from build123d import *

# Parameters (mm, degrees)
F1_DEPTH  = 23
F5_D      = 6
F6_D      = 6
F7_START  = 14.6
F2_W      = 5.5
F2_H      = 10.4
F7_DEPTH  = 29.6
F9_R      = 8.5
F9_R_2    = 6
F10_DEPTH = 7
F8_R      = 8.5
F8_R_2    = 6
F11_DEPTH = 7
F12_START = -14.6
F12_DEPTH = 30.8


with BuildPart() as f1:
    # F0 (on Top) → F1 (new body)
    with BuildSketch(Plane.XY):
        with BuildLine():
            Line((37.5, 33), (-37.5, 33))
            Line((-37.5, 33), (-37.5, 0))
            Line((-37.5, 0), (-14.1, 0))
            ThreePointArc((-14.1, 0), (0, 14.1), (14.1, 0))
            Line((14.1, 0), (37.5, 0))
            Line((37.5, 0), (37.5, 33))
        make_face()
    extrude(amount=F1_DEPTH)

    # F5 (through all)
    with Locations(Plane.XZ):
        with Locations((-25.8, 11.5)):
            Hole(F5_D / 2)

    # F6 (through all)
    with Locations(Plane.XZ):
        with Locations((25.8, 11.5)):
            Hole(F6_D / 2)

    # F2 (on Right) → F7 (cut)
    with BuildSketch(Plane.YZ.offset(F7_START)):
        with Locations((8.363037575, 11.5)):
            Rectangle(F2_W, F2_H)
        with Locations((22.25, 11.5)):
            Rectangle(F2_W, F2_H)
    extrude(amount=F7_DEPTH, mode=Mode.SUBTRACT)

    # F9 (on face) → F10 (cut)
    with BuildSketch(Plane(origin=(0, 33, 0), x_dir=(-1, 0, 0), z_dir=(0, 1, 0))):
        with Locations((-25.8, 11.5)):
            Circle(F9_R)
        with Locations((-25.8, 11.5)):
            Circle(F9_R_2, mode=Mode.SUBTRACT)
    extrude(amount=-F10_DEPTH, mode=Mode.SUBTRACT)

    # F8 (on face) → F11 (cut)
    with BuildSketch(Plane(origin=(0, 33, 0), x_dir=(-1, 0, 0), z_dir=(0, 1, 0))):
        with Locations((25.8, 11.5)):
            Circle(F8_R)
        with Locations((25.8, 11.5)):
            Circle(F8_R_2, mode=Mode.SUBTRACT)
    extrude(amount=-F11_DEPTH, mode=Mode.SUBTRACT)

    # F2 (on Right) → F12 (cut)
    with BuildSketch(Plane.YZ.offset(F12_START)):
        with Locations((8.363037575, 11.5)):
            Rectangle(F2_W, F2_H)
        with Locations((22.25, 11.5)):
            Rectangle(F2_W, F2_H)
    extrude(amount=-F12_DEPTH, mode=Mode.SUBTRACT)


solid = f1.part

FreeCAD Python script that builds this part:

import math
import FreeCAD as App
import Part
import Sketcher

V = App.Vector

doc = App.newDocument("Part")
body = doc.addObject("PartDesign::Body", "Body")

# Sketch on XY plane
sketch1 = doc.addObject("Sketcher::SketchObject", "Sketch")
body.addObject(sketch1)
sketch1.AttachmentSupport = (doc.XY_Plane, [""])
sketch1.MapMode = "FlatFace"
sketch1.addGeometry(Part.LineSegment(V(38, 33, 0), V(-38, 33, 0)), False)
sketch1.addGeometry(Part.LineSegment(V(-38, 33, 0), V(-38, 0, 0)), False)
sketch1.addGeometry(Part.LineSegment(V(-38, 0, 0), V(-14, 0, 0)), False)
sketch1.addGeometry(Part.ArcOfCircle(Part.Circle(V(0, 0, 0), V(0, 0, 1), 14), math.radians(0), math.radians(180)), False)
sketch1.addGeometry(Part.LineSegment(V(14, 0, 0), V(38, 0, 0)), False)
sketch1.addGeometry(Part.LineSegment(V(38, 0, 0), V(38, 33, 0)), False)
sketch1.addConstraint(Sketcher.Constraint("Coincident", 0, 2, 1, 1))
sketch1.addConstraint(Sketcher.Constraint("Coincident", 1, 2, 2, 1))
sketch1.addConstraint(Sketcher.Constraint("Coincident", 2, 2, 3, 2))
sketch1.addConstraint(Sketcher.Constraint("Coincident", 3, 1, 4, 1))
sketch1.addConstraint(Sketcher.Constraint("Coincident", 4, 2, 5, 1))
sketch1.addConstraint(Sketcher.Constraint("Coincident", 5, 2, 0, 1))
sketch1.addConstraint(Sketcher.Constraint("Horizontal", 0))
sketch1.addConstraint(Sketcher.Constraint("Vertical", 1))
sketch1.addConstraint(Sketcher.Constraint("Horizontal", 2))
sketch1.addConstraint(Sketcher.Constraint("Horizontal", 4))
sketch1.addConstraint(Sketcher.Constraint("Vertical", 5))
sketch1.addConstraint(Sketcher.Constraint("Coincident", 3, 3, -1, 1))
sketch1.addConstraint(Sketcher.Constraint("Symmetric", 1, 2, 4, 2, -1, 1))
sketch1.addConstraint(Sketcher.Constraint("PointOnObject", 1, 2, -1))
sketch1.addConstraint(Sketcher.Constraint("Radius", 3, 14.1))
sketch1.addConstraint(Sketcher.Constraint("DistanceX", 0, 2, 0, 1, 75.0))
sketch1.addConstraint(Sketcher.Constraint("DistanceY", 1, 2, 1, 1, 33.0))
pad1 = doc.addObject("PartDesign::Pad", "Pad")
body.addObject(pad1)
pad1.Profile = sketch1
pad1.Length = 23

# Sketch on XZ plane
sketch2 = doc.addObject("Sketcher::SketchObject", "Sketch001")
body.addObject(sketch2)
sketch2.AttachmentSupport = (doc.XZ_Plane, [""])
sketch2.MapMode = "FlatFace"
sketch2.addGeometry(Part.Circle(V(-25.8, 11.5, 0), V(0, 0, 1), 3), False)
sketch2.addConstraint(Sketcher.Constraint("Diameter", 0, 6.0))
sketch2.addConstraint(Sketcher.Constraint("DistanceX", 0, 3, -1, 1, 25.8))
sketch2.addConstraint(Sketcher.Constraint("DistanceY", -1, 1, 0, 3, 11.5))
doc.recompute()
hole = doc.addObject("PartDesign::Hole", "Hole")
body.addObject(hole)
hole.Profile = sketch2
hole.ThreadType = "None"
hole.Diameter = 6
hole.DepthType = "ThroughAll"

# Sketch on XZ plane
sketch3 = doc.addObject("Sketcher::SketchObject", "Sketch002")
body.addObject(sketch3)
sketch3.AttachmentSupport = (doc.XZ_Plane, [""])
sketch3.MapMode = "FlatFace"
sketch3.addGeometry(Part.Circle(V(25.8, 11.5, 0), V(0, 0, 1), 3), False)
sketch3.addConstraint(Sketcher.Constraint("Diameter", 0, 6.0))
sketch3.addConstraint(Sketcher.Constraint("DistanceX", -1, 1, 0, 3, 25.8))
sketch3.addConstraint(Sketcher.Constraint("DistanceY", -1, 1, 0, 3, 11.5))
doc.recompute()
hole2 = doc.addObject("PartDesign::Hole", "Hole001")
body.addObject(hole2)
hole2.Profile = sketch3
hole2.ThreadType = "None"
hole2.Diameter = 6
hole2.DepthType = "ThroughAll"

# Sketch on YZ plane
sketch4 = doc.addObject("Sketcher::SketchObject", "Sketch003")
body.addObject(sketch4)
sketch4.AttachmentSupport = (doc.YZ_Plane, [""])
sketch4.MapMode = "FlatFace"
sketch4.AttachmentOffset = App.Placement(V(0, 0, 14.6), App.Rotation())
sketch4.addGeometry(Part.LineSegment(V(6, 17, 0), V(6, 6, 0)), False)
sketch4.addGeometry(Part.LineSegment(V(6, 6, 0), V(11, 6, 0)), False)
sketch4.addGeometry(Part.LineSegment(V(11, 6, 0), V(11, 17, 0)), False)
sketch4.addGeometry(Part.LineSegment(V(11, 17, 0), V(6, 17, 0)), False)
sketch4.addGeometry(Part.LineSegment(V(20, 17, 0), V(20, 6, 0)), False)
sketch4.addGeometry(Part.LineSegment(V(20, 6, 0), V(25, 6, 0)), False)
sketch4.addGeometry(Part.LineSegment(V(25, 6, 0), V(25, 17, 0)), False)
sketch4.addGeometry(Part.LineSegment(V(25, 17, 0), V(20, 17, 0)), False)
sketch4.addConstraint(Sketcher.Constraint("Coincident", 0, 2, 1, 1))
sketch4.addConstraint(Sketcher.Constraint("Coincident", 1, 2, 2, 1))
sketch4.addConstraint(Sketcher.Constraint("Coincident", 2, 2, 3, 1))
sketch4.addConstraint(Sketcher.Constraint("Coincident", 3, 2, 0, 1))
sketch4.addConstraint(Sketcher.Constraint("Coincident", 4, 2, 5, 1))
sketch4.addConstraint(Sketcher.Constraint("Coincident", 5, 2, 6, 1))
sketch4.addConstraint(Sketcher.Constraint("Coincident", 6, 2, 7, 1))
sketch4.addConstraint(Sketcher.Constraint("Coincident", 7, 2, 4, 1))
sketch4.addConstraint(Sketcher.Constraint("Vertical", 0))
sketch4.addConstraint(Sketcher.Constraint("Horizontal", 1))
sketch4.addConstraint(Sketcher.Constraint("Vertical", 2))
sketch4.addConstraint(Sketcher.Constraint("Horizontal", 3))
sketch4.addConstraint(Sketcher.Constraint("Vertical", 4))
sketch4.addConstraint(Sketcher.Constraint("Horizontal", 5))
sketch4.addConstraint(Sketcher.Constraint("Vertical", 6))
sketch4.addConstraint(Sketcher.Constraint("Horizontal", 7))
sketch4.addConstraint(Sketcher.Constraint("Horizontal", 1, 2, 4, 2))
sketch4.addConstraint(Sketcher.Constraint("Horizontal", 3, 2, 6, 2))
sketch4.addConstraint(Sketcher.Constraint("Equal", 3, 5))
sketch4.addConstraint(Sketcher.Constraint("DistanceX", 1, 1, 1, 2, 5.5))
sketch4.addConstraint(Sketcher.Constraint("DistanceY", 0, 2, 0, 1, 10.4))
sketch4.addConstraint(Sketcher.Constraint("DistanceX", -1, 1, 5, 2, 25.0))
sketch4.addConstraint(Sketcher.Constraint("DistanceY", -1, 1, 0, 2, 6.3))
sketch4.addConstraint(Sketcher.Constraint("DistanceX", -1, 1, 0, 2, 5.613038))
pocket1 = doc.addObject("PartDesign::Pocket", "Pocket")
body.addObject(pocket1)
pocket1.Profile = sketch4
pocket1.Length = 29.6
pocket1.Reversed = True

# Sketch on XZ plane
sketch5 = doc.addObject("Sketcher::SketchObject", "Sketch004")
body.addObject(sketch5)
sketch5.AttachmentSupport = (doc.XZ_Plane, [""])
sketch5.MapMode = "FlatFace"
sketch5.AttachmentOffset = App.Placement(V(0, 0, -33), App.Rotation())
sketch5.addGeometry(Part.Circle(V(26, 12, 0), V(0, 0, 1), 8), False)
sketch5.addGeometry(Part.Circle(V(26, 12, 0), V(0, 0, 1), 6), False)
sketch5.addConstraint(Sketcher.Constraint("Coincident", 1, 3, 0, 3))
sketch5.addConstraint(Sketcher.Constraint("Diameter", 0, 17.0))
sketch5.addConstraint(Sketcher.Constraint("Diameter", 1, 12.0))
sketch5.addConstraint(Sketcher.Constraint("DistanceX", -1, 1, 0, 3, 25.8))
sketch5.addConstraint(Sketcher.Constraint("DistanceY", -1, 1, 0, 3, 11.5))
pocket2 = doc.addObject("PartDesign::Pocket", "Pocket001")
body.addObject(pocket2)
pocket2.Profile = sketch5
pocket2.Length = 7
pocket2.Reversed = True

# Sketch on XZ plane
sketch6 = doc.addObject("Sketcher::SketchObject", "Sketch005")
body.addObject(sketch6)
sketch6.AttachmentSupport = (doc.XZ_Plane, [""])
sketch6.MapMode = "FlatFace"
sketch6.AttachmentOffset = App.Placement(V(0, 0, -33), App.Rotation())
sketch6.addGeometry(Part.Circle(V(-26, 12, 0), V(0, 0, 1), 8), False)
sketch6.addGeometry(Part.Circle(V(-26, 12, 0), V(0, 0, 1), 6), False)
sketch6.addConstraint(Sketcher.Constraint("Coincident", 1, 3, 0, 3))
sketch6.addConstraint(Sketcher.Constraint("Diameter", 0, 17.0))
sketch6.addConstraint(Sketcher.Constraint("Diameter", 1, 12.0))
sketch6.addConstraint(Sketcher.Constraint("DistanceX", 0, 3, -1, 1, 25.8))
sketch6.addConstraint(Sketcher.Constraint("DistanceY", -1, 1, 0, 3, 11.5))
pocket3 = doc.addObject("PartDesign::Pocket", "Pocket002")
body.addObject(pocket3)
pocket3.Profile = sketch6
pocket3.Length = 7
pocket3.Reversed = True

# Sketch on YZ plane
sketch7 = doc.addObject("Sketcher::SketchObject", "Sketch006")
body.addObject(sketch7)
sketch7.AttachmentSupport = (doc.YZ_Plane, [""])
sketch7.MapMode = "FlatFace"
sketch7.AttachmentOffset = App.Placement(V(0, 0, -14.6), App.Rotation())
sketch7.addGeometry(Part.LineSegment(V(6, 17, 0), V(6, 6, 0)), False)
sketch7.addGeometry(Part.LineSegment(V(6, 6, 0), V(11, 6, 0)), False)
sketch7.addGeometry(Part.LineSegment(V(11, 6, 0), V(11, 17, 0)), False)
sketch7.addGeometry(Part.LineSegment(V(11, 17, 0), V(6, 17, 0)), False)
sketch7.addGeometry(Part.LineSegment(V(20, 17, 0), V(20, 6, 0)), False)
sketch7.addGeometry(Part.LineSegment(V(20, 6, 0), V(25, 6, 0)), False)
sketch7.addGeometry(Part.LineSegment(V(25, 6, 0), V(25, 17, 0)), False)
sketch7.addGeometry(Part.LineSegment(V(25, 17, 0), V(20, 17, 0)), False)
sketch7.addConstraint(Sketcher.Constraint("Coincident", 0, 2, 1, 1))
sketch7.addConstraint(Sketcher.Constraint("Coincident", 1, 2, 2, 1))
sketch7.addConstraint(Sketcher.Constraint("Coincident", 2, 2, 3, 1))
sketch7.addConstraint(Sketcher.Constraint("Coincident", 3, 2, 0, 1))
sketch7.addConstraint(Sketcher.Constraint("Coincident", 4, 2, 5, 1))
sketch7.addConstraint(Sketcher.Constraint("Coincident", 5, 2, 6, 1))
sketch7.addConstraint(Sketcher.Constraint("Coincident", 6, 2, 7, 1))
sketch7.addConstraint(Sketcher.Constraint("Coincident", 7, 2, 4, 1))
sketch7.addConstraint(Sketcher.Constraint("Vertical", 0))
sketch7.addConstraint(Sketcher.Constraint("Horizontal", 1))
sketch7.addConstraint(Sketcher.Constraint("Vertical", 2))
sketch7.addConstraint(Sketcher.Constraint("Horizontal", 3))
sketch7.addConstraint(Sketcher.Constraint("Vertical", 4))
sketch7.addConstraint(Sketcher.Constraint("Horizontal", 5))
sketch7.addConstraint(Sketcher.Constraint("Vertical", 6))
sketch7.addConstraint(Sketcher.Constraint("Horizontal", 7))
sketch7.addConstraint(Sketcher.Constraint("Horizontal", 1, 2, 4, 2))
sketch7.addConstraint(Sketcher.Constraint("Horizontal", 3, 2, 6, 2))
sketch7.addConstraint(Sketcher.Constraint("Equal", 3, 5))
sketch7.addConstraint(Sketcher.Constraint("DistanceX", 1, 1, 1, 2, 5.5))
sketch7.addConstraint(Sketcher.Constraint("DistanceY", 0, 2, 0, 1, 10.4))
sketch7.addConstraint(Sketcher.Constraint("DistanceX", -1, 1, 5, 2, 25.0))
sketch7.addConstraint(Sketcher.Constraint("DistanceY", -1, 1, 0, 2, 6.3))
sketch7.addConstraint(Sketcher.Constraint("DistanceX", -1, 1, 0, 2, 5.613038))
pocket4 = doc.addObject("PartDesign::Pocket", "Pocket003")
body.addObject(pocket4)
pocket4.Profile = sketch7
pocket4.Length = 30.8

doc.recompute()
